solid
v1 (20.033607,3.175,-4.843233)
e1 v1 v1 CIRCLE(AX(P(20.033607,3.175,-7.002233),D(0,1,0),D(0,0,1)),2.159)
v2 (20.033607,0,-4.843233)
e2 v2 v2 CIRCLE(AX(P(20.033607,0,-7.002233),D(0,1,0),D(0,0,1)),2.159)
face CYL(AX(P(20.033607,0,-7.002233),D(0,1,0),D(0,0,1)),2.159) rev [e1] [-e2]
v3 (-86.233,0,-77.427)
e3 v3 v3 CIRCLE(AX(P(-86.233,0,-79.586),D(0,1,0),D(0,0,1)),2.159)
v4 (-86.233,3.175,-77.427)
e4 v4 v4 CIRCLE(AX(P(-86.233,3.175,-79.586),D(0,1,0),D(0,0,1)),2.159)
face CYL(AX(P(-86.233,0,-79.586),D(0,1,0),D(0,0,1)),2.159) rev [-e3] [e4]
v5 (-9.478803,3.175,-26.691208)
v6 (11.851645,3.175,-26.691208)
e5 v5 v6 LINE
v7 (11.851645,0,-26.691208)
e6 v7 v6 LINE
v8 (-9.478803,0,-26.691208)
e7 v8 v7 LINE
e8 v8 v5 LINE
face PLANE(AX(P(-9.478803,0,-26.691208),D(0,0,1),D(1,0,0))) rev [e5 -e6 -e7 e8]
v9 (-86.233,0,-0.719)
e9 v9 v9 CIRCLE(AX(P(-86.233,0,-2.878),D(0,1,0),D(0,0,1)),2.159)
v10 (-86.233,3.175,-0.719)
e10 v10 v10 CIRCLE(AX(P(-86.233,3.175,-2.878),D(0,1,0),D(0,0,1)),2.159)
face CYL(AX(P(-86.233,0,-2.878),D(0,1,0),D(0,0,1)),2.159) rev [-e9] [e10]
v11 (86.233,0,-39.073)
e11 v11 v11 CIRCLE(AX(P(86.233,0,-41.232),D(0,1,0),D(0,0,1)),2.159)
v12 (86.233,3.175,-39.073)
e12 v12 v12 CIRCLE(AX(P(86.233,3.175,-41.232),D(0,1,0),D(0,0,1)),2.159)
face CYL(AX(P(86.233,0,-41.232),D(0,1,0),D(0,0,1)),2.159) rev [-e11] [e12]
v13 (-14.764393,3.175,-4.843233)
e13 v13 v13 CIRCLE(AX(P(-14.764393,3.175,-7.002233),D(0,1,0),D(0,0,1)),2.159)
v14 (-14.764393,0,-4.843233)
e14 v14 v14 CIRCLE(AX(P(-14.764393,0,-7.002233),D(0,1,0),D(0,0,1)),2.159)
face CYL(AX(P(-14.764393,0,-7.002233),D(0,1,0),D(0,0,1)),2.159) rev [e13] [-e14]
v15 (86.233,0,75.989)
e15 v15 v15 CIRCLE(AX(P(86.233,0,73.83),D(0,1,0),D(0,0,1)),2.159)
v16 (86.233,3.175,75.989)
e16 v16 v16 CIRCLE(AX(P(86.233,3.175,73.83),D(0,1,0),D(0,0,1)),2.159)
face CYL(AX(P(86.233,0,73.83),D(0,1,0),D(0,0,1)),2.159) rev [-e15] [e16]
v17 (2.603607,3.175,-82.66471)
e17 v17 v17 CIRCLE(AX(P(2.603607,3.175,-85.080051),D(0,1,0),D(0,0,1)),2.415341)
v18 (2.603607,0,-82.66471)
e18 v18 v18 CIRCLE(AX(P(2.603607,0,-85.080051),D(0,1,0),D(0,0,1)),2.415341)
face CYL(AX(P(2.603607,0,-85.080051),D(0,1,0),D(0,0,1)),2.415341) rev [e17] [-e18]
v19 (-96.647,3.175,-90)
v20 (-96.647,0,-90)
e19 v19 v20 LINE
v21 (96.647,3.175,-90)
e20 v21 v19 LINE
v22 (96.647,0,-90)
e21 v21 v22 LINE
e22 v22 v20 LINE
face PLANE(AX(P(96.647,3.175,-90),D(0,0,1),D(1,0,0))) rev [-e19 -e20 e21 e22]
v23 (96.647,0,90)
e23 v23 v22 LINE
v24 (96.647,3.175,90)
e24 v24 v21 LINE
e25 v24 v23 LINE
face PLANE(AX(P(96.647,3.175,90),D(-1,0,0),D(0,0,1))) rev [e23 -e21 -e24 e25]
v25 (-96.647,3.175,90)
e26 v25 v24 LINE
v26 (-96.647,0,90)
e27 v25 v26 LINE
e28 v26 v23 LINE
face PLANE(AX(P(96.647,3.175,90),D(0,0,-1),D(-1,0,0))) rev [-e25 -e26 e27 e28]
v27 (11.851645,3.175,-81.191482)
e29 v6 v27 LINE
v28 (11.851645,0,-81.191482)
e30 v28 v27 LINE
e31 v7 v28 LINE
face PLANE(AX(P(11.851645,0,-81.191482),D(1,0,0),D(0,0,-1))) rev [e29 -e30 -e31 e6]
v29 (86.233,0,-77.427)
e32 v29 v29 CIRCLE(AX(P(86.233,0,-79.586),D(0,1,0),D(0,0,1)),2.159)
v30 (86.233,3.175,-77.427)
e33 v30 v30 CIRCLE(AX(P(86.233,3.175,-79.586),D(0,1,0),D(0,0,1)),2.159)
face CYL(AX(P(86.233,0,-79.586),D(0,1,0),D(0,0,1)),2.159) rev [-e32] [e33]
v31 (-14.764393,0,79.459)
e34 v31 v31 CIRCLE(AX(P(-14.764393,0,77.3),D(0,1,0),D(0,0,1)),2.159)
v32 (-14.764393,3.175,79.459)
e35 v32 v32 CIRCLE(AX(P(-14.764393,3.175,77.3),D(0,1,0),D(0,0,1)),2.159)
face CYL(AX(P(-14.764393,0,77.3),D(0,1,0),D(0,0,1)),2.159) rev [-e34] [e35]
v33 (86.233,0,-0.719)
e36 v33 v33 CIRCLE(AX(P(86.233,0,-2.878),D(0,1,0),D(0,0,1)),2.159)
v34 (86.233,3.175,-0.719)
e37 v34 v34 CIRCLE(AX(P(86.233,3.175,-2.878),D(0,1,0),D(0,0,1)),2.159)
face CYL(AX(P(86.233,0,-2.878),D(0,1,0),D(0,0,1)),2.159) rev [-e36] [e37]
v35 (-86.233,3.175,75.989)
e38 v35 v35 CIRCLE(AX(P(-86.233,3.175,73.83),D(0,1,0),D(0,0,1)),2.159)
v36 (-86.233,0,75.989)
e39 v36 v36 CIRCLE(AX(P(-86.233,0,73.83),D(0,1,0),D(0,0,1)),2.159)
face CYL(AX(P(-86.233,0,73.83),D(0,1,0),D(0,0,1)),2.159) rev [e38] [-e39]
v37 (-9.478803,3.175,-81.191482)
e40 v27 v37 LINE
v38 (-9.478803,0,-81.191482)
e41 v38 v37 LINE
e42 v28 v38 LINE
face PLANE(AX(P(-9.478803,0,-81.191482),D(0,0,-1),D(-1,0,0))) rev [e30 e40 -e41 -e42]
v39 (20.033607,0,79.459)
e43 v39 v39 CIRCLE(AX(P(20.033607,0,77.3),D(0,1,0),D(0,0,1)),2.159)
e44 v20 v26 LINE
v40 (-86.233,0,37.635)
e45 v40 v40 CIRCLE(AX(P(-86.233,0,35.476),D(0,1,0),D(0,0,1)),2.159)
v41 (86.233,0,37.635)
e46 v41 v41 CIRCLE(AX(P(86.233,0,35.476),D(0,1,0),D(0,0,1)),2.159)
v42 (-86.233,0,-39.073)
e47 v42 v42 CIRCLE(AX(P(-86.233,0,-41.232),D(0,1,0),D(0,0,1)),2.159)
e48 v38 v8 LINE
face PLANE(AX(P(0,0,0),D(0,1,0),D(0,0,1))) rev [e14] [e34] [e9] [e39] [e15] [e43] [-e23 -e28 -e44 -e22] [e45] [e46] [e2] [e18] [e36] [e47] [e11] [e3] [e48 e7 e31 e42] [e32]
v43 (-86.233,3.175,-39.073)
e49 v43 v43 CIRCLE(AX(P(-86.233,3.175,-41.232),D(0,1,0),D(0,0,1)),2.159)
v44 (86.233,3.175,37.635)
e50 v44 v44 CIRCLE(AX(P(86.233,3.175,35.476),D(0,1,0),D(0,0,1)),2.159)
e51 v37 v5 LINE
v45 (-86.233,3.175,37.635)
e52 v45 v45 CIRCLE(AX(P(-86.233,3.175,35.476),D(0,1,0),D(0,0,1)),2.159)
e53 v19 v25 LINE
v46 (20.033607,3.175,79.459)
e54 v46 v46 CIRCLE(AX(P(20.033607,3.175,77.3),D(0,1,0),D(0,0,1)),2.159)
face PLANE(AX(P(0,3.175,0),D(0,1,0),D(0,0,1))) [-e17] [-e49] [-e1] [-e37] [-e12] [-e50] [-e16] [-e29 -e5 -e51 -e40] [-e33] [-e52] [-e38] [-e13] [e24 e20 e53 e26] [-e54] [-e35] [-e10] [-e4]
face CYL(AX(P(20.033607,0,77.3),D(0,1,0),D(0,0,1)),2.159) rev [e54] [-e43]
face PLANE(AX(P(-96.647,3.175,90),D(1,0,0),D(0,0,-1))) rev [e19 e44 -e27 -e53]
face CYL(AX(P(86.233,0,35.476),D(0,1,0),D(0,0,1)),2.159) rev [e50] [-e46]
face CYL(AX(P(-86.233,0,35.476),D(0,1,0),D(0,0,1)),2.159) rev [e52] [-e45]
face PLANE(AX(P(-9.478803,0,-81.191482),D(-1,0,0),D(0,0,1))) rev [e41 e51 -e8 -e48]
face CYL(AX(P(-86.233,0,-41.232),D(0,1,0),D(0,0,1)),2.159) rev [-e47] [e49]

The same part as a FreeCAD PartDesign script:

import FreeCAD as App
import Part
import Sketcher

V = App.Vector
Q = App.Units.Quantity

doc = App.newDocument("Part")
body = doc.addObject("PartDesign::Body", "Body")

sketch1 = doc.addObject("Sketcher::SketchObject", "Sketch")
body.addObject(sketch1)
sketch1.AttachmentSupport = (doc.XZ_Plane, [""])
sketch1.MapMode = "FlatFace"
sketch1.addGeometry(Part.LineSegment(V(-97, -90, 0), V(-97, 90, 0)), False)
sketch1.addGeometry(Part.LineSegment(V(-97, 90, 0), V(97, 90, 0)), False)
sketch1.addGeometry(Part.LineSegment(V(97, 90, 0), V(97, -90, 0)), False)
sketch1.addGeometry(Part.LineSegment(V(97, -90, 0), V(-97, -90, 0)), False)
sketch1.addConstraint(Sketcher.Constraint("Coincident", 0, 2, 1, 1))
sketch1.addConstraint(Sketcher.Constraint("Coincident", 1, 2, 2, 1))
sketch1.addConstraint(Sketcher.Constraint("Coincident", 2, 2, 3, 1))
sketch1.addConstraint(Sketcher.Constraint("Coincident", 3, 2, 0, 1))
sketch1.addConstraint(Sketcher.Constraint("Vertical", 0))
sketch1.addConstraint(Sketcher.Constraint("Horizontal", 1))
sketch1.addConstraint(Sketcher.Constraint("Vertical", 2))
sketch1.addConstraint(Sketcher.Constraint("Horizontal", 3))
sketch1.addConstraint(Sketcher.Constraint("Symmetric", 0, 2, 2, 2, -1, 1))
sketch1.addConstraint(Sketcher.Constraint("DistanceX", 1, 1, 1, 2, Q("7.61 in")))
sketch1.addConstraint(Sketcher.Constraint("DistanceY", 0, 1, 0, 2, 180.0))
pad1 = doc.addObject("PartDesign::Pad", "Pad")
body.addObject(pad1)
pad1.Profile = sketch1
pad1.Length = Q("0.125 in")
pad1.Reversed = True

sketch2 = doc.addObject("Sketcher::SketchObject", "Sketch001")
body.addObject(sketch2)
sketch2.AttachmentSupport = (doc.XZ_Plane, [""])
sketch2.MapMode = "FlatFace"
sketch2.AttachmentOffset = App.Placement(V(0, 0, -0.125 * 25.4), App.Rotation())
sketch2.addGeometry(Part.Circle(V(-86.2, -79.6, 0), V(0, 0, 1), 2.2), False)
sketch2.addGeometry(Part.Circle(V(86.2, -79.6, 0), V(0, 0, 1), 2.2), False)
sketch2.addGeometry(Part.Circle(V(86.2, -41.2, 0), V(0, 0, 1), 2.2), False)
sketch2.addGeometry(Part.Circle(V(86.2, -2.9, 0), V(0, 0, 1), 2.2), False)
sketch2.addGeometry(Part.Circle(V(86.2, 35.5, 0), V(0, 0, 1), 2.2), False)
sketch2.addGeometry(Part.Circle(V(-86.2, -41.2, 0), V(0, 0, 1), 2.2), False)
sketch2.addGeometry(Part.Circle(V(-86.2, -2.9, 0), V(0, 0, 1), 2.2), False)
sketch2.addGeometry(Part.Circle(V(-86.2, 35.5, 0), V(0, 0, 1), 2.2), False)
sketch2.addGeometry(Part.Circle(V(-86.2, 73.8, 0), V(0, 0, 1), 2.2), False)
sketch2.addGeometry(Part.Circle(V(86.2, 73.8, 0), V(0, 0, 1), 2.2), False)
sketch2.addConstraint(Sketcher.Constraint("Equal", 0, 1))
sketch2.addConstraint(Sketcher.Constraint("Equal", 1, 2))
sketch2.addConstraint(Sketcher.Constraint("Equal", 2, 3))
sketch2.addConstraint(Sketcher.Constraint("Equal", 3, 4))
sketch2.addConstraint(Sketcher.Constraint("Equal", 4, 5))
sketch2.addConstraint(Sketcher.Constraint("Equal", 5, 6))
sketch2.addConstraint(Sketcher.Constraint("Equal", 6, 7))
sketch2.addConstraint(Sketcher.Constraint("Equal", 7, 8))
sketch2.addConstraint(Sketcher.Constraint("Equal", 8, 9))
sketch2.addConstraint(Sketcher.Constraint("Symmetric", 0, 3, 1, 3, -2))
sketch2.addConstraint(Sketcher.Constraint("Symmetric", 2, 3, 5, 3, -2))
sketch2.addConstraint(Sketcher.Constraint("Symmetric", 3, 3, 6, 3, -2))
sketch2.addConstraint(Sketcher.Constraint("Symmetric", 4, 3, 7, 3, -2))
sketch2.addConstraint(Sketcher.Constraint("Symmetric", 8, 3, 9, 3, -2))
sketch2.addConstraint(Sketcher.Constraint("Vertical", 1, 3, 2, 3))
sketch2.addConstraint(Sketcher.Constraint("Vertical", 2, 3, 3, 3))
sketch2.addConstraint(Sketcher.Constraint("Vertical", 3, 3, 4, 3))
sketch2.addConstraint(Sketcher.Constraint("Vertical", 7, 3, 8, 3))
sketch2.addConstraint(Sketcher.Constraint("Diameter", 0, Q("0.17 in")))
sketch2.addConstraint(Sketcher.Constraint("DistanceX", 0, 3, 1, 3, Q("6.79 in")))
sketch2.addConstraint(Sketcher.Constraint("DistanceY", 1, 3, 2, 3, Q("1.51 in")))
sketch2.addConstraint(Sketcher.Constraint("DistanceY", 2, 3, 3, 3, Q("1.51 in")))
sketch2.addConstraint(Sketcher.Constraint("DistanceY", 3, 3, 4, 3, Q("1.51 in")))
sketch2.addConstraint(Sketcher.Constraint("DistanceY", 7, 3, 8, 3, Q("1.51 in")))
sketch2.addConstraint(Sketcher.Constraint("DistanceY", 0, 3, -1, 1, 79.586))
pocket1 = doc.addObject("PartDesign::Pocket", "Pocket")
body.addObject(pocket1)
pocket1.Profile = sketch2
pocket1.Type = "ThroughAll"
pocket1.Reversed = True

sketch3 = doc.addObject("Sketcher::SketchObject", "Sketch002")
body.addObject(sketch3)
sketch3.AttachmentSupport = (doc.XZ_Plane, [""])
sketch3.MapMode = "FlatFace"
sketch3.AttachmentOffset = App.Placement(V(0, 0, -0.125 * 25.4), App.Rotation())
sketch3.addGeometry(Part.Circle(V(-14.8, -7, 0), V(0, 0, 1), 2.2), False)
sketch3.addGeometry(Part.Circle(V(20, -7, 0), V(0, 0, 1), 2.2), False)
sketch3.addGeometry(Part.Circle(V(20, 77.3, 0), V(0, 0, 1), 2.2), False)
sketch3.addGeometry(Part.Circle(V(-14.8, 77.3, 0), V(0, 0, 1), 2.2), False)
sketch3.addGeometry(Part.Circle(V(2.6, -85.1, 0), V(0, 0, 1), 2.4), False)
sketch3.addConstraint(Sketcher.Constraint("Equal", 0, 1))
sketch3.addConstraint(Sketcher.Constraint("Equal", 1, 2))
sketch3.addConstraint(Sketcher.Constraint("Equal", 2, 3))
sketch3.addConstraint(Sketcher.Constraint("Horizontal", 0, 3, 1, 3))
sketch3.addConstraint(Sketcher.Constraint("Horizontal", 2, 3, 3, 3))
sketch3.addConstraint(Sketcher.Constraint("Vertical", 1, 3, 2, 3))
sketch3.addConstraint(Sketcher.Constraint("Vertical", 0, 3, 3, 3))
sketch3.addConstraint(Sketcher.Constraint("Diameter", 0, Q("0.17 in")))
sketch3.addConstraint(Sketcher.Constraint("DistanceX", 0, 3, 1, 3, Q("1.37 in")))
sketch3.addConstraint(Sketcher.Constraint("Diameter", 4, 4.830682))
sketch3.addConstraint(Sketcher.Constraint("DistanceY", -1, 1, 2, 3, 77.3))
sketch3.addConstraint(Sketcher.Constraint("DistanceX", 0, 3, 4, 3, 17.368))
sketch3.addConstraint(Sketcher.Constraint("DistanceY", 4, 3, -1, 1, 85.080051))
sketch3.addConstraint(Sketcher.Constraint("DistanceY", 4, 3, 0, 3, 78.077818))
sketch3.addConstraint(Sketcher.Constraint("DistanceX", 0, 3, -1, 1, 14.764393))
pocket2 = doc.addObject("PartDesign::Pocket", "Pocket001")
body.addObject(pocket2)
pocket2.Profile = sketch3
pocket2.Type = "ThroughAll"
pocket2.Reversed = True

sketch4 = doc.addObject("Sketcher::SketchObject", "Sketch003")
body.addObject(sketch4)
sketch4.AttachmentSupport = (doc.XZ_Plane, [""])
sketch4.MapMode = "FlatFace"
sketch4.AttachmentOffset = App.Placement(V(0, 0, -0.125 * 25.4), App.Rotation())
sketch4.addGeometry(Part.LineSegment(V(-9, -81, 0), V(-9, -27, 0)), False)
sketch4.addGeometry(Part.LineSegment(V(-9, -27, 0), V(12, -27, 0)), False)
sketch4.addGeometry(Part.LineSegment(V(12, -27, 0), V(12, -81, 0)), False)
sketch4.addGeometry(Part.LineSegment(V(12, -81, 0), V(-9, -81, 0)), False)
sketch4.addConstraint(Sketcher.Constraint("Coincident", 0, 2, 1, 1))
sketch4.addConstraint(Sketcher.Constraint("Coincident", 1, 2, 2, 1))
sketch4.addConstraint(Sketcher.Constraint("Coincident", 2, 2, 3, 1))
sketch4.addConstraint(Sketcher.Constraint("Coincident", 3, 2, 0, 1))
sketch4.addConstraint(Sketcher.Constraint("Vertical", 0))
sketch4.addConstraint(Sketcher.Constraint("Horizontal", 1))
sketch4.addConstraint(Sketcher.Constraint("Vertical", 2))
sketch4.addConstraint(Sketcher.Constraint("Horizontal", 3))
sketch4.addConstraint(Sketcher.Constraint("DistanceX", 1, 1, 1, 2, 21.330448))
sketch4.addConstraint(Sketcher.Constraint("DistanceY", 0, 1, 0, 2, 54.500274))
sketch4.addConstraint(Sketcher.Constraint("DistanceY", 0, 2, -1, 1, 26.691208))
sketch4.addConstraint(Sketcher.Constraint("DistanceX", 0, 2, -1, 1, 9.478803))
pocket3 = doc.addObject("PartDesign::Pocket", "Pocket002")
body.addObject(pocket3)
pocket3.Profile = sketch4
pocket3.Type = "ThroughAll"
pocket3.Reversed = True

doc.recompute()
